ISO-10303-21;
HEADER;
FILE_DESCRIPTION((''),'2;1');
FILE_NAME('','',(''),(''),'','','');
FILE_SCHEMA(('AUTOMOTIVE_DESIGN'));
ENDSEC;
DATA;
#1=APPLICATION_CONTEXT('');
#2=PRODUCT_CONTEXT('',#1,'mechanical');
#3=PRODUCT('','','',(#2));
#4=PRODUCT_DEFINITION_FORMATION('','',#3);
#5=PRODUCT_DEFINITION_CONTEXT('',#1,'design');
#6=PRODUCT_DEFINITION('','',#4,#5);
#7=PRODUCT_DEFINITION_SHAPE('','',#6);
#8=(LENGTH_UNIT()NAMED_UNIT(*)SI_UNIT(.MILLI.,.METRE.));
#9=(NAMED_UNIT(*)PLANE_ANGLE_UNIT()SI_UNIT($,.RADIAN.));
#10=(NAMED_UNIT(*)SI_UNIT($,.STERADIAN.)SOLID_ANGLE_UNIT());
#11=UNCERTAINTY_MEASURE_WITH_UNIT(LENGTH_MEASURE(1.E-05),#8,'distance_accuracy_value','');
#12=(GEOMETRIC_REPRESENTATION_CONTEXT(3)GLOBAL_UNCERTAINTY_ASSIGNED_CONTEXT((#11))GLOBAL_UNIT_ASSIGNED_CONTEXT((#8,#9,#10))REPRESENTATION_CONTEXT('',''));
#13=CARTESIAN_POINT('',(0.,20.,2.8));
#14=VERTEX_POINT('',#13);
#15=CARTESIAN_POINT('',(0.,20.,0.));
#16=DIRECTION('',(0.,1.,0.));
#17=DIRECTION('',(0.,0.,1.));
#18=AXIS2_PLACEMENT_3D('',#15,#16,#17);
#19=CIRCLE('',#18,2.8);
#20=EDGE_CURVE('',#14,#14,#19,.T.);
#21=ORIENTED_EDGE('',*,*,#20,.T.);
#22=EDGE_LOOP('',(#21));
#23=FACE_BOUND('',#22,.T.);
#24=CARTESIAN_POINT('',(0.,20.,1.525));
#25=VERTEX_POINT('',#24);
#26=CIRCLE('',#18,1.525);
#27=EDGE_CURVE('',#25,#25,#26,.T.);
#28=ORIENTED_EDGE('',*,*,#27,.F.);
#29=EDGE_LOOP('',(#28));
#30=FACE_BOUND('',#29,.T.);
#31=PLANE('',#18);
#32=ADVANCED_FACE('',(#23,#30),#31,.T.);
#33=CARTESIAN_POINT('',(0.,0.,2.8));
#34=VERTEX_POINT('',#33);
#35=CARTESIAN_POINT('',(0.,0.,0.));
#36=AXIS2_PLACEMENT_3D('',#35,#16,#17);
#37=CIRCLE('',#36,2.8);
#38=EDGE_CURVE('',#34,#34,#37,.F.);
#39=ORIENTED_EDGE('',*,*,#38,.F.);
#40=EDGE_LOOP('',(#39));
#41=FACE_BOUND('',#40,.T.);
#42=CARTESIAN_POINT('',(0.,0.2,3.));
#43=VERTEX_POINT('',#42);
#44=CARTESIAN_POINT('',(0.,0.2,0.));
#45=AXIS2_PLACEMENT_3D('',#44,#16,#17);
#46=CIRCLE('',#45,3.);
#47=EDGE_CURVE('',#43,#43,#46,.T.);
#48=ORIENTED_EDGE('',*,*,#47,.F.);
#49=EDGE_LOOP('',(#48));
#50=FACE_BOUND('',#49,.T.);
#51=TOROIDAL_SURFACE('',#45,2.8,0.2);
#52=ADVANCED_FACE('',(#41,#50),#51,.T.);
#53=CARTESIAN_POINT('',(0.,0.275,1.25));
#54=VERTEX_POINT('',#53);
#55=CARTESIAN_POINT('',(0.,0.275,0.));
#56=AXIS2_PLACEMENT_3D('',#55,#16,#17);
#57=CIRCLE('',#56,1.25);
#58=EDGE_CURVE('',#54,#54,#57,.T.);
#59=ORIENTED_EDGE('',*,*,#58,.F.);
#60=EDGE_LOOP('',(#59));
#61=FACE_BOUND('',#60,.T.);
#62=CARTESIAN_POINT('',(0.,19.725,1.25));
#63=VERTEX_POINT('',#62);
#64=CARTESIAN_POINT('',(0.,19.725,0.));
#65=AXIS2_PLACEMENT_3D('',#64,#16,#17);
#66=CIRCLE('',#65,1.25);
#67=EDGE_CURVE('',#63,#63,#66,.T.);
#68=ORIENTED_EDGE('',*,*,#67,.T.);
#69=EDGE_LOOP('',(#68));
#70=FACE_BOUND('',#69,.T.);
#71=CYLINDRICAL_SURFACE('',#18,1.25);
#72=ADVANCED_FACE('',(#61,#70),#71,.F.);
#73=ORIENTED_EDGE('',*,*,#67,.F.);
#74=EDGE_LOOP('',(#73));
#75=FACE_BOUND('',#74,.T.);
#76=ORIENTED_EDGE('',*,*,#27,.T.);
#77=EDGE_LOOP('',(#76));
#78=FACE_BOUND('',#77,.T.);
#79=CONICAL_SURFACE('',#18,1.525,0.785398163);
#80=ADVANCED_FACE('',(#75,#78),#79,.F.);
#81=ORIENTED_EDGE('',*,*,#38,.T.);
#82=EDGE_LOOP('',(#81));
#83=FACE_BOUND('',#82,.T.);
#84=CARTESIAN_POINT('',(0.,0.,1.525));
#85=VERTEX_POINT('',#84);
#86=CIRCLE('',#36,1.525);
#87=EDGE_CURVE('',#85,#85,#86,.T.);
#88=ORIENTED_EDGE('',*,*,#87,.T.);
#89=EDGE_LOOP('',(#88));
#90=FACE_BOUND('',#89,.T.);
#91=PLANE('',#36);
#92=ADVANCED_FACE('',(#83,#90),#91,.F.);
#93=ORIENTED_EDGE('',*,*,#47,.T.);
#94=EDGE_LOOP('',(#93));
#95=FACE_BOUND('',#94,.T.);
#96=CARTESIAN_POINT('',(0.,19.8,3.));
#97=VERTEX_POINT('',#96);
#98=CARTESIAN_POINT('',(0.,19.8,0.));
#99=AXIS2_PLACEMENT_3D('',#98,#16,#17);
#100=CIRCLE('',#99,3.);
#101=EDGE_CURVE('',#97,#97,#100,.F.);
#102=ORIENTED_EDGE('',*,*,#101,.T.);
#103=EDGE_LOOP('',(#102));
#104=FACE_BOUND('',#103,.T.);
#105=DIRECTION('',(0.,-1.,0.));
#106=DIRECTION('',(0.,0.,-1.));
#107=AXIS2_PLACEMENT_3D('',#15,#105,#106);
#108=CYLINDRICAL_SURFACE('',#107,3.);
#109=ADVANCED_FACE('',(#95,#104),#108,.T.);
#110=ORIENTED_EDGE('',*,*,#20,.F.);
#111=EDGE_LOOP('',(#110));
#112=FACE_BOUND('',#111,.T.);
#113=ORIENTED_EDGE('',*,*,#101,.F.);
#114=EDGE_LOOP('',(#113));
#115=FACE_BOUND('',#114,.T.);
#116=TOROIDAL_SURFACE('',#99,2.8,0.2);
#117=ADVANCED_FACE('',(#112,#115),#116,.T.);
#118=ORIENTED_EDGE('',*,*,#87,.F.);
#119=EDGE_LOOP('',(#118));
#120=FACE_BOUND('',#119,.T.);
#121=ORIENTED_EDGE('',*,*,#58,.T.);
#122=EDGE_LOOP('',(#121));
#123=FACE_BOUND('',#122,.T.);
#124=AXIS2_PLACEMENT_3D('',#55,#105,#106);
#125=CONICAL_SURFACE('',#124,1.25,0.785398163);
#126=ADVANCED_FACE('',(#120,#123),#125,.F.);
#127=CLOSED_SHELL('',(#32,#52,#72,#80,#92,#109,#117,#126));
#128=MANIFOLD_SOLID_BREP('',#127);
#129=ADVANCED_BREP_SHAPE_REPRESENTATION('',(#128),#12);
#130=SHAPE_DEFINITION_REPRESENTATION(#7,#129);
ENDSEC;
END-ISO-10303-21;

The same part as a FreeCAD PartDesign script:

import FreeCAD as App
import Part
import Sketcher
from FreeCAD import Vector


def edges_at(feature, points):
    """Names of the edges that pass closest to the given points."""
    edges = feature.Shape.Edges
    near = lambda p: min(range(len(edges)), key=lambda i: edges[i].distToShape(Part.Vertex(*p))[0])
    return sorted({f"Edge{near(p) + 1}" for p in points})


def add_polygon(sketch, points):
    """Adds a closed chain of lines whose ends are joined by coincident constraints."""
    first, n = sketch.GeometryCount, len(points)
    for a, b in zip(points, points[1:] + points[:1]):
        sketch.addGeometry(Part.LineSegment(App.Vector(*a, 0), App.Vector(*b, 0)), False)
    for i in range(n):
        sketch.addConstraint(Sketcher.Constraint("Coincident", first + i, 2, first + (i + 1) % n, 1))

doc = App.newDocument("Part")
body = doc.addObject("PartDesign::Body", "Body")

sketch1 = body.newObject("Sketcher::SketchObject", "Sketch")
sketch1.AttachmentSupport = (doc.getObject("XZ_Plane"), [""])
sketch1.MapMode = "FlatFace"
sketch1.addGeometry(Part.Circle(Vector(0, 0, 0), Vector(0, 0, 1), 3), False)
sketch1.addConstraint([
    Sketcher.Constraint("Coincident", 0, 3, -1, 1),
    Sketcher.Constraint("Diameter", 0, 6.0),
])
pad1 = body.newObject("PartDesign::Pad", "Pad")
pad1.Profile = sketch1
pad1.Length = 20
pad1.Reversed = True
doc.recompute()

fillet = body.newObject("PartDesign::Fillet", "Fillet")
fillet.Base = (pad1, edges_at(pad1, [(0, 0, -3), (0, 20, -3)]))
fillet.Radius = 0.2

sketch2 = body.newObject("Sketcher::SketchObject", "Sketch001")
sketch2.AttachmentSupport = (doc.getObject("YZ_Plane"), [""])
sketch2.MapMode = "FlatFace"
add_polygon(sketch2, [(0, 0), (20, 0), (20, 1.52), (19.73, 1.25), (0.28, 1.25), (0, 1.52)])
sketch2.addConstraint([
    Sketcher.Constraint("Horizontal", 0),
    Sketcher.Constraint("Vertical", 1),
    Sketcher.Constraint("Horizontal", 3),
    Sketcher.Constraint("Vertical", 5),
    Sketcher.Constraint("Coincident", 5, 2, -1, 1),
    Sketcher.Constraint("Perpendicular", 2, 4),
    Sketcher.Constraint("Horizontal", 1, 2, 4, 2),
    Sketcher.Constraint("Equal", 2, 4),
    Sketcher.Constraint("DistanceX", 0, 1, 0, 2, 20.0),
    Sketcher.Constraint("DistanceX", 3, 2, 3, 1, 19.45),
    Sketcher.Constraint("DistanceY", 1, 1, 1, 2, 1.525),
])
groove = body.newObject("PartDesign::Groove", "Groove")
groove.Profile = sketch2
groove.ReferenceAxis = (sketch2, ["H_Axis"])
groove.Angle = 360

doc.recompute()
